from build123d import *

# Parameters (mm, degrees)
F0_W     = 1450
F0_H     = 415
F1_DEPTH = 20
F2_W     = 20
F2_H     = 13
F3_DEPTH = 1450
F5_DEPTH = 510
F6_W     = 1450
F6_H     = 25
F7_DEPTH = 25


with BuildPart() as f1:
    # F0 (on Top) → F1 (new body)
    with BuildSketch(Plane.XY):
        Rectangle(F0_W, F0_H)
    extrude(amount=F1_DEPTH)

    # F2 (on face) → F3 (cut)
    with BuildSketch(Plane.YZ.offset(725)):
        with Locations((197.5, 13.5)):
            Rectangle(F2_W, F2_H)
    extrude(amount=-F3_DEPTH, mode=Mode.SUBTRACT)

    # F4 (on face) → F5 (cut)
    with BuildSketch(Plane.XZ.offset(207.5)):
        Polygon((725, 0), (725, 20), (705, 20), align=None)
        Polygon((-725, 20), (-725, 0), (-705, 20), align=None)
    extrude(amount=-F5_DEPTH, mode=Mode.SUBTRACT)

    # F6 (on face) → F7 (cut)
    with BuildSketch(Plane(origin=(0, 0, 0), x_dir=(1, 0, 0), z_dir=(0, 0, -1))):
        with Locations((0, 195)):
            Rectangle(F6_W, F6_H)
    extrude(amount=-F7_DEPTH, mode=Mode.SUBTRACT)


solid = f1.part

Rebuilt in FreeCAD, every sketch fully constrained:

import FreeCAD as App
import Part
import Sketcher

doc = App.newDocument("Part")
body = doc.addObject("PartDesign::Body", "Body")

sketch1 = body.newObject("Sketcher::SketchObject", "Sketch")
sketch1.AttachmentSupport = (doc.getObject("XY_Plane"), [""])
sketch1.MapMode = "FlatFace"
sketch1.addGeometry(Part.LineSegment(App.Vector(-725, 207.5, 0), App.Vector(-725, -207.5, 0)), False)
sketch1.addGeometry(Part.LineSegment(App.Vector(-725, -207.5, 0), App.Vector(725, -207.5, 0)), False)
sketch1.addGeometry(Part.LineSegment(App.Vector(725, -207.5, 0), App.Vector(725, 207.5, 0)), False)
sketch1.addGeometry(Part.LineSegment(App.Vector(725, 207.5, 0), App.Vector(-725, 207.5, 0)), False)
sketch1.addConstraint(Sketcher.Constraint("Coincident", 0, 2, 1, 1))
sketch1.addConstraint(Sketcher.Constraint("Coincident", 1, 2, 2, 1))
sketch1.addConstraint(Sketcher.Constraint("Coincident", 2, 2, 3, 1))
sketch1.addConstraint(Sketcher.Constraint("Coincident", 3, 2, 0, 1))
sketch1.addConstraint(Sketcher.Constraint("Vertical", 0))
sketch1.addConstraint(Sketcher.Constraint("Horizontal", 1))
sketch1.addConstraint(Sketcher.Constraint("Vertical", 2))
sketch1.addConstraint(Sketcher.Constraint("Horizontal", 3))
sketch1.addConstraint(Sketcher.Constraint("Symmetric", 0, 2, 2, 2, -1, 1))
sketch1.addConstraint(Sketcher.Constraint("DistanceX", 1, 1, 1, 2, 1450.0))
sketch1.addConstraint(Sketcher.Constraint("DistanceY", 0, 2, 0, 1, 415.0))
pad1 = body.newObject("PartDesign::Pad", "Pad")
pad1.Profile = sketch1
pad1.Length = 20

sketch2 = body.newObject("Sketcher::SketchObject", "Sketch001")
sketch2.AttachmentSupport = (doc.getObject("YZ_Plane"), [""])
sketch2.MapMode = "FlatFace"
sketch2.AttachmentOffset = App.Placement(App.Vector(0, 0, 725), App.Rotation())
sketch2.addGeometry(Part.LineSegment(App.Vector(187.5, 20, 0), App.Vector(187.5, 7, 0)), False)
sketch2.addGeometry(Part.LineSegment(App.Vector(187.5, 7, 0), App.Vector(207.5, 7, 0)), False)
sketch2.addGeometry(Part.LineSegment(App.Vector(207.5, 7, 0), App.Vector(207.5, 20, 0)), False)
sketch2.addGeometry(Part.LineSegment(App.Vector(207.5, 20, 0), App.Vector(187.5, 20, 0)), False)
sketch2.addConstraint(Sketcher.Constraint("Coincident", 0, 2, 1, 1))
sketch2.addConstraint(Sketcher.Constraint("Coincident", 1, 2, 2, 1))
sketch2.addConstraint(Sketcher.Constraint("Coincident", 2, 2, 3, 1))
sketch2.addConstraint(Sketcher.Constraint("Coincident", 3, 2, 0, 1))
sketch2.addConstraint(Sketcher.Constraint("Vertical", 0))
sketch2.addConstraint(Sketcher.Constraint("Horizontal", 1))
sketch2.addConstraint(Sketcher.Constraint("Vertical", 2))
sketch2.addConstraint(Sketcher.Constraint("Horizontal", 3))
sketch2.addConstraint(Sketcher.Constraint("DistanceX", 1, 1, 1, 2, 20.0))
sketch2.addConstraint(Sketcher.Constraint("DistanceY", 0, 2, 0, 1, 13.0))
sketch2.addConstraint(Sketcher.Constraint("DistanceY", -1, 1, 0, 2, 7.0))
sketch2.addConstraint(Sketcher.Constraint("DistanceX", -1, 1, 0, 2, 187.5))
pocket1 = body.newObject("PartDesign::Pocket", "Pocket")
pocket1.Profile = sketch2
pocket1.Length = 1450

sketch3 = body.newObject("Sketcher::SketchObject", "Sketch002")
sketch3.AttachmentSupport = (doc.getObject("XZ_Plane"), [""])
sketch3.MapMode = "FlatFace"
sketch3.AttachmentOffset = App.Placement(App.Vector(0, 0, 207.5), App.Rotation())
sketch3.addGeometry(Part.LineSegment(App.Vector(725, 0, 0), App.Vector(725, 20, 0)), False)
sketch3.addGeometry(Part.LineSegment(App.Vector(725, 20, 0), App.Vector(705, 20, 0)), False)
sketch3.addGeometry(Part.LineSegment(App.Vector(705, 20, 0), App.Vector(725, 0, 0)), False)
sketch3.addGeometry(Part.LineSegment(App.Vector(-725, 20, 0), App.Vector(-725, 0, 0)), False)
sketch3.addGeometry(Part.LineSegment(App.Vector(-725, 0, 0), App.Vector(-705, 20, 0)), False)
sketch3.addGeometry(Part.LineSegment(App.Vector(-705, 20, 0), App.Vector(-725, 20, 0)), False)
sketch3.addConstraint(Sketcher.Constraint("Coincident", 0, 2, 1, 1))
sketch3.addConstraint(Sketcher.Constraint("Coincident", 1, 2, 2, 1))
sketch3.addConstraint(Sketcher.Constraint("Coincident", 2, 2, 0, 1))
sketch3.addConstraint(Sketcher.Constraint("Coincident", 3, 2, 4, 1))
sketch3.addConstraint(Sketcher.Constraint("Coincident", 4, 2, 5, 1))
sketch3.addConstraint(Sketcher.Constraint("Coincident", 5, 2, 3, 1))
sketch3.addConstraint(Sketcher.Constraint("Vertical", 0))
sketch3.addConstraint(Sketcher.Constraint("Horizontal", 1))
sketch3.addConstraint(Sketcher.Constraint("Vertical", 3))
sketch3.addConstraint(Sketcher.Constraint("Horizontal", 5))
sketch3.addConstraint(Sketcher.Constraint("Symmetric", 2, 2, 3, 2, -1, 1))
sketch3.addConstraint(Sketcher.Constraint("Symmetric", 1, 2, 4, 2, -2))
sketch3.addConstraint(Sketcher.Constraint("PointOnObject", 2, 2, -1))
sketch3.addConstraint(Sketcher.Constraint("Perpendicular", 2, 4))
sketch3.addConstraint(Sketcher.Constraint("DistanceX", 1, 2, 1, 1, 20.0))
sketch3.addConstraint(Sketcher.Constraint("DistanceX", -1, 1, 0, 2, 725.0))
pocket2 = body.newObject("PartDesign::Pocket", "Pocket001")
pocket2.Profile = sketch3
pocket2.Length = 510

sketch4 = body.newObject("Sketcher::SketchObject", "Sketch003")
sketch4.AttachmentSupport = (doc.getObject("XY_Plane"), [""])
sketch4.MapMode = "FlatFace"
sketch4.addGeometry(Part.LineSegment(App.Vector(-725, -207.5, 0), App.Vector(-725, -182.5, 0)), False)
sketch4.addGeometry(Part.LineSegment(App.Vector(-725, -182.5, 0), App.Vector(725, -182.5, 0)), False)
sketch4.addGeometry(Part.LineSegment(App.Vector(725, -182.5, 0), App.Vector(725, -207.5, 0)), False)
sketch4.addGeometry(Part.LineSegment(App.Vector(725, -207.5, 0), App.Vector(-725, -207.5, 0)), False)
sketch4.addConstraint(Sketcher.Constraint("Coincident", 0, 2, 1, 1))
sketch4.addConstraint(Sketcher.Constraint("Coincident", 1, 2, 2, 1))
sketch4.addConstraint(Sketcher.Constraint("Coincident", 2, 2, 3, 1))
sketch4.addConstraint(Sketcher.Constraint("Coincident", 3, 2, 0, 1))
sketch4.addConstraint(Sketcher.Constraint("Vertical", 0))
sketch4.addConstraint(Sketcher.Constraint("Horizontal", 1))
sketch4.addConstraint(Sketcher.Constraint("Vertical", 2))
sketch4.addConstraint(Sketcher.Constraint("Horizontal", 3))
sketch4.addConstraint(Sketcher.Constraint("DistanceX", 1, 1, 1, 2, 1450.0))
sketch4.addConstraint(Sketcher.Constraint("DistanceY", 0, 1, 0, 2, 25.0))
sketch4.addConstraint(Sketcher.Constraint("DistanceX", 0, 2, -1, 1, 725.0))
sketch4.addConstraint(Sketcher.Constraint("DistanceY", 0, 2, -1, 1, 182.5))
pocket3 = body.newObject("PartDesign::Pocket", "Pocket002")
pocket3.Profile = sketch4
pocket3.Length = 25
pocket3.Reversed = True

doc.recompute()
